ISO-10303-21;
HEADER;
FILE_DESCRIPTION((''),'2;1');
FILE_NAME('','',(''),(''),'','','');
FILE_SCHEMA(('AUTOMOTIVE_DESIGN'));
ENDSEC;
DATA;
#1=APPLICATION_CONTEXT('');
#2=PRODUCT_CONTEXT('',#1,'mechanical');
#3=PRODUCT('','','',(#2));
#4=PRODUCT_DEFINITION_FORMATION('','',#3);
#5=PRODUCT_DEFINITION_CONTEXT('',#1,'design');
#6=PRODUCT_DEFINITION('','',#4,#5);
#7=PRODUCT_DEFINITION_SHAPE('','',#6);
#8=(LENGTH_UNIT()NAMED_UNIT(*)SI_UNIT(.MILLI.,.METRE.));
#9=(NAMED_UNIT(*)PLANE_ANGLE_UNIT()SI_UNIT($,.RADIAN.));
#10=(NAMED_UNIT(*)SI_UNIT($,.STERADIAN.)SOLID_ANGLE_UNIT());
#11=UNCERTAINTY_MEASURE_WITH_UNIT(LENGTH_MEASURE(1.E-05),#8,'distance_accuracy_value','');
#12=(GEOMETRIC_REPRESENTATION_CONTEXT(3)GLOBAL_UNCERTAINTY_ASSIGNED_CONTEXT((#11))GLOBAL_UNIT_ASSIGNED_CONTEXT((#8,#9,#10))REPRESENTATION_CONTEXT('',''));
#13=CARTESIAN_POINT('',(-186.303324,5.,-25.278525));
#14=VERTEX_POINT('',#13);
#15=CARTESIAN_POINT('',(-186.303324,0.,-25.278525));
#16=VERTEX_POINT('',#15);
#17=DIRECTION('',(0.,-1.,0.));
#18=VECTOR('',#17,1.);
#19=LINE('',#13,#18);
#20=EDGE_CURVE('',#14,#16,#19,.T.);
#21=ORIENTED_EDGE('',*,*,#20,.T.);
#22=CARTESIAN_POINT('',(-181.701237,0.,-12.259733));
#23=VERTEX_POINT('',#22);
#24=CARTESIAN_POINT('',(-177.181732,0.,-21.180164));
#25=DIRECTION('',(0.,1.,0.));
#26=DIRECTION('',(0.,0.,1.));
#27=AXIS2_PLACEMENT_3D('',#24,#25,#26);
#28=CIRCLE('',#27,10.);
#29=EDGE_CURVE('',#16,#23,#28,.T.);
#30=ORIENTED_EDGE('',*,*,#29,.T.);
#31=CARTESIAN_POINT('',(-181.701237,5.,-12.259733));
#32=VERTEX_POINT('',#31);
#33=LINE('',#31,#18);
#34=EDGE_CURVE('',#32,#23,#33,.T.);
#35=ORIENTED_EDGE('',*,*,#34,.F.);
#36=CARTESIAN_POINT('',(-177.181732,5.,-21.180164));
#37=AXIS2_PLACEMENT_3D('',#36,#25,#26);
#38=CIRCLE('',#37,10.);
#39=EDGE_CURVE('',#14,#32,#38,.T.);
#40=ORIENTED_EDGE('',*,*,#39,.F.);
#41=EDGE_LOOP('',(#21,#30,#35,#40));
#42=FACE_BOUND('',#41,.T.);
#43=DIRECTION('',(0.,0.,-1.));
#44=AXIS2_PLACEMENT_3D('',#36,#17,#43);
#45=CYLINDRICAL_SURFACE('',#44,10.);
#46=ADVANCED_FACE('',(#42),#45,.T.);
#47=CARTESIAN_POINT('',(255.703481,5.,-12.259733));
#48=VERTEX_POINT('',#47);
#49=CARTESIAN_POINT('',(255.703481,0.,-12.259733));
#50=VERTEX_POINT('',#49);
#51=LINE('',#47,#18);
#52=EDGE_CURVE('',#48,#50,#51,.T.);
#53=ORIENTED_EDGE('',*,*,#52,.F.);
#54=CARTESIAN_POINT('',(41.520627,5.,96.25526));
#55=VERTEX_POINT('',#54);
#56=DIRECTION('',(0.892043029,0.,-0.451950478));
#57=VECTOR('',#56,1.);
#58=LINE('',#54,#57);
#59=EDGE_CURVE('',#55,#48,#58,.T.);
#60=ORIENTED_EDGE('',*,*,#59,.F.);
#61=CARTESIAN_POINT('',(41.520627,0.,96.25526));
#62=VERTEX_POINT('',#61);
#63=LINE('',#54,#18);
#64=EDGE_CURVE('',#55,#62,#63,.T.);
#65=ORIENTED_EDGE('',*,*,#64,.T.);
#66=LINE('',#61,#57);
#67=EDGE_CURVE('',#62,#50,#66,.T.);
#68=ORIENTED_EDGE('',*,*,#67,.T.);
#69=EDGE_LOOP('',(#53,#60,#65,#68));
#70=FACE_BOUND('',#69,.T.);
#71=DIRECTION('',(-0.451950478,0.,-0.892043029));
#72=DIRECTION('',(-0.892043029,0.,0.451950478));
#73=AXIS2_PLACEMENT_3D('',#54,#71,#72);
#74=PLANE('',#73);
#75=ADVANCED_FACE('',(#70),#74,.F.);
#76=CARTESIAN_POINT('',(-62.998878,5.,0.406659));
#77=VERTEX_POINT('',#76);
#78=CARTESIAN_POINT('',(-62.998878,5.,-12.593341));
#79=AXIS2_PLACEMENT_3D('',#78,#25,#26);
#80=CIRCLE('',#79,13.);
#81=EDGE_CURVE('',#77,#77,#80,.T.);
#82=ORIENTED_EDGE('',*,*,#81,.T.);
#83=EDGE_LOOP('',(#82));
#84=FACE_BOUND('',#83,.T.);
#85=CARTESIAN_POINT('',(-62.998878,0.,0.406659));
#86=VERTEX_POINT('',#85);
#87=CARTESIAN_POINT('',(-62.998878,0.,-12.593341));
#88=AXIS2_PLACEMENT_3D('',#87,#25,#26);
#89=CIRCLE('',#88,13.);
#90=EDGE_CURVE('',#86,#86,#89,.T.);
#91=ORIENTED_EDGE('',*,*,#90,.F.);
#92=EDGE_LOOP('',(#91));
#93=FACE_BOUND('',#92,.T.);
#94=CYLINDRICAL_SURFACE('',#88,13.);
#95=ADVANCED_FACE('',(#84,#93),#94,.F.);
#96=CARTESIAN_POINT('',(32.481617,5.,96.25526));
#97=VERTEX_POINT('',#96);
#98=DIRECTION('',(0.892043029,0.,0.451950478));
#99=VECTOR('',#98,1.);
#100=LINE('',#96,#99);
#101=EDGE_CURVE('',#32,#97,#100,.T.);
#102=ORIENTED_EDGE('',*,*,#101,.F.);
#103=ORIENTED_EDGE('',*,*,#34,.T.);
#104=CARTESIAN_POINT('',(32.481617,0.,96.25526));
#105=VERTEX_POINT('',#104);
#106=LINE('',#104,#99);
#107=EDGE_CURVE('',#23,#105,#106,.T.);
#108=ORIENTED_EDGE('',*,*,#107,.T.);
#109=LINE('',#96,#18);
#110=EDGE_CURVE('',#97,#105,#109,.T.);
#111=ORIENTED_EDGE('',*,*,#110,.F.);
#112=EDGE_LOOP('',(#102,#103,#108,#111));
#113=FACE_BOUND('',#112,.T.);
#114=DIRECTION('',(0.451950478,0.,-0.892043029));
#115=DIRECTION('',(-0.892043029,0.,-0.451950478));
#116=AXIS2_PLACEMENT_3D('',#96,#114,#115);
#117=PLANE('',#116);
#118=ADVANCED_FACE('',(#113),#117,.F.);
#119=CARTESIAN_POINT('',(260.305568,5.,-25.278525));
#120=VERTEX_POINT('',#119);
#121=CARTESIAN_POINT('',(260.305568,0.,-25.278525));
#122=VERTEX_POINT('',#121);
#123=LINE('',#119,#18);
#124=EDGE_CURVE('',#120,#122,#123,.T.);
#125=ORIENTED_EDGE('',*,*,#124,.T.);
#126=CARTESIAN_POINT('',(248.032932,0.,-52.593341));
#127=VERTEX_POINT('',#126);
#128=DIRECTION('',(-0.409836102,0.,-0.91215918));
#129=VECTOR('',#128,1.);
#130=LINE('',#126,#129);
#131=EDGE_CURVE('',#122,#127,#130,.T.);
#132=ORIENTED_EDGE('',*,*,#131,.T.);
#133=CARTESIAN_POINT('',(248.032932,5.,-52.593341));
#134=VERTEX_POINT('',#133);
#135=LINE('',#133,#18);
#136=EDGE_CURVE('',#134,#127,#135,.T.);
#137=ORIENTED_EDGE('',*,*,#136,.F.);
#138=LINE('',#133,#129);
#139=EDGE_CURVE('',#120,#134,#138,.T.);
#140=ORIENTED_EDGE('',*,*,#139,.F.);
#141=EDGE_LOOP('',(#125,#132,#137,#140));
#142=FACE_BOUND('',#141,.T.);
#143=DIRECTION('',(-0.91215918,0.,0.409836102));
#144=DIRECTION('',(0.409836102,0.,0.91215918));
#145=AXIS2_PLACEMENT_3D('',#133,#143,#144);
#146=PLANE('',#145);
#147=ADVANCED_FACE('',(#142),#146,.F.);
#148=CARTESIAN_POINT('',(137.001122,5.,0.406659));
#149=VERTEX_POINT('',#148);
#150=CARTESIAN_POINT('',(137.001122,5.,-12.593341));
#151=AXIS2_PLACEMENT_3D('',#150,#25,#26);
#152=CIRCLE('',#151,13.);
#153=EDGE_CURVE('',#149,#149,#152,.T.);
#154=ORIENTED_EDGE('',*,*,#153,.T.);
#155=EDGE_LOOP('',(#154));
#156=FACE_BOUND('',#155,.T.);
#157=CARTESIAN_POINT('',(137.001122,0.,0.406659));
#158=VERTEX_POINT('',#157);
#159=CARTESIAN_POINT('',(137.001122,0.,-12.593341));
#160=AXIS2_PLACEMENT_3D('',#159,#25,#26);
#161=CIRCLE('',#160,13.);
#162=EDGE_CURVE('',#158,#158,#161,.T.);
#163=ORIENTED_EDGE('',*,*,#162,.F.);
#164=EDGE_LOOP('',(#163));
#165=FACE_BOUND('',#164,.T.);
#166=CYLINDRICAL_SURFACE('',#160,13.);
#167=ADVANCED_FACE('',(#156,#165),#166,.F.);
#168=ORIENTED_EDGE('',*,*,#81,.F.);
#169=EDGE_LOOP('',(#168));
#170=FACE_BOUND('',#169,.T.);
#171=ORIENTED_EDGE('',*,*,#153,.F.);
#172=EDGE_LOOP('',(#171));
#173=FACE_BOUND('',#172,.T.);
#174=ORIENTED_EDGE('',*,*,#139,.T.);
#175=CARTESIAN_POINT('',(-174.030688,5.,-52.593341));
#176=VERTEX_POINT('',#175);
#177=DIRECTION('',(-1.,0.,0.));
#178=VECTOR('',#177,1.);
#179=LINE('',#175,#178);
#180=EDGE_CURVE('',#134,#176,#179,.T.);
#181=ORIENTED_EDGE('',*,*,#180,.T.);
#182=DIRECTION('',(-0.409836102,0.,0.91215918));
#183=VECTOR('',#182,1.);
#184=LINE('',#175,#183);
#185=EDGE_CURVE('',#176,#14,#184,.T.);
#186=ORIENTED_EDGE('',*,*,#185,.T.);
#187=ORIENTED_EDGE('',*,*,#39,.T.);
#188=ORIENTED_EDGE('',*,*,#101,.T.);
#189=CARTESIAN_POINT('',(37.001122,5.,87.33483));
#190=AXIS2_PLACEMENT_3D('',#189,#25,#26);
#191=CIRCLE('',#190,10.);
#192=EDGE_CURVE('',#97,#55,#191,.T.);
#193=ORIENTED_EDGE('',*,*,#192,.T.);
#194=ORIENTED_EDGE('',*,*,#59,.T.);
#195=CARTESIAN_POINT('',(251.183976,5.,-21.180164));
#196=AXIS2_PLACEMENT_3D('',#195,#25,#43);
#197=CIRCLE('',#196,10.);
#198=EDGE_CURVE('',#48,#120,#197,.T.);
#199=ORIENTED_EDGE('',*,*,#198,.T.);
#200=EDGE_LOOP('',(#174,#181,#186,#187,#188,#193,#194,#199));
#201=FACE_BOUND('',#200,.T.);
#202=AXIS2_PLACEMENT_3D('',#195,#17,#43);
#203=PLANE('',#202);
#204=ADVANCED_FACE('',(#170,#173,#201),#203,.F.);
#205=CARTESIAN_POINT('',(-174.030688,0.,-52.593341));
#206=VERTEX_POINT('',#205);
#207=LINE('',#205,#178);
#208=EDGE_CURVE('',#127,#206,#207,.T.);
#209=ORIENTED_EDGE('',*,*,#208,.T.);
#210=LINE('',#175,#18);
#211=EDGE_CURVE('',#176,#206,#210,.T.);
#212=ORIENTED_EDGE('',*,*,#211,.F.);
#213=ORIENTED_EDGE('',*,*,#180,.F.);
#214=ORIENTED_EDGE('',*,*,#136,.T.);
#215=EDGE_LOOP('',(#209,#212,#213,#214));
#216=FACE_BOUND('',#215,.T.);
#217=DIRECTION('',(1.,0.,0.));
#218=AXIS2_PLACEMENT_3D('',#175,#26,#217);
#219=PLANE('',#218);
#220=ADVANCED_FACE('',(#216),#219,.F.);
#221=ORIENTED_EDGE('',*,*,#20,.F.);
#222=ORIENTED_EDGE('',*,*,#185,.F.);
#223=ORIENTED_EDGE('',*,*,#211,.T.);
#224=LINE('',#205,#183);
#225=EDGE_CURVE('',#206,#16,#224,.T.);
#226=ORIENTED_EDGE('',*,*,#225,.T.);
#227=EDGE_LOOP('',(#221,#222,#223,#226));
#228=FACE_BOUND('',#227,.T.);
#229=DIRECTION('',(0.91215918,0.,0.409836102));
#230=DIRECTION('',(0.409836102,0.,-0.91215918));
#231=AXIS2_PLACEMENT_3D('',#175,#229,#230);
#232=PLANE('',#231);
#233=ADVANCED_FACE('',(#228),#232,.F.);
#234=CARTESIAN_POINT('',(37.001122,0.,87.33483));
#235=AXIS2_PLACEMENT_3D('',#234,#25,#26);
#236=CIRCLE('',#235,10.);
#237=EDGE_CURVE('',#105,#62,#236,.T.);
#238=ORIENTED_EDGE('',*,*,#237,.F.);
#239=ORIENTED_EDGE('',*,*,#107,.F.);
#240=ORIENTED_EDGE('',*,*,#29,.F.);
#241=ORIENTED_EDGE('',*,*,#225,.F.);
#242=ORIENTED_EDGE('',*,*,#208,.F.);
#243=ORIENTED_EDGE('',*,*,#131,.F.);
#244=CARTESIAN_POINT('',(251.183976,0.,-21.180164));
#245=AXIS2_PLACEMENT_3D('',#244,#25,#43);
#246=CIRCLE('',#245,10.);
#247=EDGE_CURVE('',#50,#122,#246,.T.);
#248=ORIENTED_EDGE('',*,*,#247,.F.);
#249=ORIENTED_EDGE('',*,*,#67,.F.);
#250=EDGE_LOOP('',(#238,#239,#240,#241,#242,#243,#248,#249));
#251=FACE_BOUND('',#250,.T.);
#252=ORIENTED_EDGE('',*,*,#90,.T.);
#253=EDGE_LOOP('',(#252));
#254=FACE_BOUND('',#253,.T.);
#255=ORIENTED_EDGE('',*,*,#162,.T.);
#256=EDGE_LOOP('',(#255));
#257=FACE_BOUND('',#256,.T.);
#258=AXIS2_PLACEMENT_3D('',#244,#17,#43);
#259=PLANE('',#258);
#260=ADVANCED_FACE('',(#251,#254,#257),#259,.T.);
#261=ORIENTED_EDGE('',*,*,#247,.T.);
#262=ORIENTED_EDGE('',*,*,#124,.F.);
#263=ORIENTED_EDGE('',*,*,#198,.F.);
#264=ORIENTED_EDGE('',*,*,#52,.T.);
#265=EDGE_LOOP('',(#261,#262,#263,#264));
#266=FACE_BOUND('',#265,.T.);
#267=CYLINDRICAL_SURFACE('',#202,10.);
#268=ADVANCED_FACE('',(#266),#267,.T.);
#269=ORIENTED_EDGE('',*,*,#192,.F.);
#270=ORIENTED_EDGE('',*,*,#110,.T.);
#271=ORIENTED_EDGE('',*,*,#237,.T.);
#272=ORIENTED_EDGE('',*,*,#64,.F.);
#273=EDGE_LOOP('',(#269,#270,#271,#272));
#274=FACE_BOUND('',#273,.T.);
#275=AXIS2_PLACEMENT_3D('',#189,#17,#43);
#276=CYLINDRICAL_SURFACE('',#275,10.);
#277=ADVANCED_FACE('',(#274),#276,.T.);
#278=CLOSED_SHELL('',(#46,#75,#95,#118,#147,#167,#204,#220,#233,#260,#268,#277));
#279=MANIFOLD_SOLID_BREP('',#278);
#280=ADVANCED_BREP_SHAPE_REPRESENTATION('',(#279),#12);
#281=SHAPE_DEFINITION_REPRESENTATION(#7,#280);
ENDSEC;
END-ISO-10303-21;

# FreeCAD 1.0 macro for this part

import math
import FreeCAD as App
import Part
import Sketcher
Q = App.Units.Quantity

doc = App.newDocument("Part")
params = doc.addObject("Spreadsheet::Sheet", "Params")
for row, (alias, value) in enumerate([
    ("sketch1_radius", "10 mm"),
    ("pad1_length", "5 mm"),
    ("sketch2_diameter", "26 mm"),
    ("pocket1_length", "5 mm"),
], start=1):
    params.set(f"A{row}", alias)
    params.set(f"B{row}", "=" + value)
    params.setAlias(f"B{row}", alias)

body = doc.addObject("PartDesign::Body", "Body")

# Sketch on XZ plane
sketch1 = doc.addObject("Sketcher::SketchObject", "Sketch")
body.addObject(sketch1)
sketch1.AttachmentSupport = (doc.XZ_Plane, [""])
sketch1.MapMode = "FlatFace"
sketch1.addGeometry([
    Part.LineSegment(App.Vector(260.305568, -25.278525, 0), App.Vector(248.032932, -52.593341, 0)),  # 0
    Part.LineSegment(App.Vector(248.032932, -52.593341, 0), App.Vector(-174.030688, -52.593341, 0)),  # 1
    Part.LineSegment(App.Vector(-174.030688, -52.593341, 0), App.Vector(-186.303324, -25.278525, 0)),  # 2
    Part.ArcOfCircle(Part.Circle(App.Vector(-177.181732, -21.180164, 0), App.Vector(0, 0, 1), 10), math.radians(116.868894), math.radians(204.194539)),  # 3
    Part.LineSegment(App.Vector(-181.701237, -12.259733, 0), App.Vector(32.481617, 96.25526, 0)),  # 4
    Part.ArcOfCircle(Part.Circle(App.Vector(37.001122, 87.33483, 0), App.Vector(0, 0, 1), 10), math.radians(63.131106), math.radians(116.868894)),  # 5
    Part.LineSegment(App.Vector(41.520627, 96.25526, 0), App.Vector(255.703481, -12.259733, 0)),  # 6
    Part.ArcOfCircle(Part.Circle(App.Vector(251.183976, -21.180164, 0), App.Vector(0, 0, 1), 10), math.radians(-24.194539), math.radians(63.131106)),  # 7
], False)
sketch1.addConstraint([
    Sketcher.Constraint("Coincident", 0, 2, 1, 1),
    Sketcher.Constraint("Coincident", 1, 2, 2, 1),
    Sketcher.Constraint("Tangent", 2, 2, 3, 2),
    Sketcher.Constraint("Tangent", 3, 1, 4, 1),
    Sketcher.Constraint("Tangent", 4, 2, 5, 2),
    Sketcher.Constraint("Tangent", 5, 1, 6, 1),
    Sketcher.Constraint("Tangent", 6, 2, 7, 2),
    Sketcher.Constraint("Tangent", 7, 1, 0, 1),
    Sketcher.Constraint("Horizontal", 1),
    Sketcher.Constraint("Equal", 3, 5),
    Sketcher.Constraint("Equal", 5, 7),
    Sketcher.Constraint("Horizontal", 3, 3, 7, 3),
    Sketcher.Constraint("Horizontal", 4, 2, 5, 1),
    Sketcher.Constraint("Horizontal", 2, 2, 7, 1),
    Sketcher.Constraint("Radius", 3, Q("10 mm")),
    Sketcher.Constraint("DistanceX", 1, 2, 1, 1, Q("422.063619 mm")),
    Sketcher.Constraint("DistanceX", 2, 2, 7, 3, Q("437.4873 mm")),
    Sketcher.Constraint("Distance", 0, Q("29.94523 mm")),
    Sketcher.Constraint("DistanceX", -1, 1, 5, 3, Q("37.001122 mm")),
    Sketcher.Constraint("DistanceY", -1, 1, 5, 3, Q("87.33483 mm")),
    Sketcher.Constraint("DistanceY", 0, 2, -1, 1, Q("52.593341 mm")),
])
sketch1.setExpression("Constraints[14]", "Params.sketch1_radius")
pad1 = doc.addObject("PartDesign::Pad", "Pad")
body.addObject(pad1)
pad1.Profile = sketch1
pad1.setExpression("Length", "Params.pad1_length")
pad1.Reversed = True

# Sketch on XZ plane
sketch2 = doc.addObject("Sketcher::SketchObject", "Sketch001")
body.addObject(sketch2)
sketch2.AttachmentSupport = (doc.XZ_Plane, [""])
sketch2.MapMode = "FlatFace"
sketch2.AttachmentOffset = App.Placement(App.Vector(0, 0, -5), App.Rotation())
sketch2.addGeometry([
    Part.Circle(App.Vector(137.001122, -12.593341, 0), App.Vector(0, 0, 1), 13),
    Part.Circle(App.Vector(-62.998878, -12.593341, 0), App.Vector(0, 0, 1), 13),
], False)
sketch2.addConstraint([
    Sketcher.Constraint("Equal", 0, 1),
    Sketcher.Constraint("Horizontal", 0, 3, 1, 3),
    Sketcher.Constraint("Diameter", 0, Q("26 mm")),
    Sketcher.Constraint("DistanceX", 1, 3, 0, 3, Q("200 mm")),
    Sketcher.Constraint("DistanceX", -1, 1, 0, 3, Q("137.001122 mm")),
    Sketcher.Constraint("DistanceY", 0, 3, -1, 1, Q("12.593341 mm")),
])
sketch2.setExpression("Constraints[2]", "Params.sketch2_diameter")
pocket1 = doc.addObject("PartDesign::Pocket", "Pocket")
body.addObject(pocket1)
pocket1.Profile = sketch2
pocket1.setExpression("Length", "Params.pocket1_length")
pocket1.Reversed = True

doc.recompute()
